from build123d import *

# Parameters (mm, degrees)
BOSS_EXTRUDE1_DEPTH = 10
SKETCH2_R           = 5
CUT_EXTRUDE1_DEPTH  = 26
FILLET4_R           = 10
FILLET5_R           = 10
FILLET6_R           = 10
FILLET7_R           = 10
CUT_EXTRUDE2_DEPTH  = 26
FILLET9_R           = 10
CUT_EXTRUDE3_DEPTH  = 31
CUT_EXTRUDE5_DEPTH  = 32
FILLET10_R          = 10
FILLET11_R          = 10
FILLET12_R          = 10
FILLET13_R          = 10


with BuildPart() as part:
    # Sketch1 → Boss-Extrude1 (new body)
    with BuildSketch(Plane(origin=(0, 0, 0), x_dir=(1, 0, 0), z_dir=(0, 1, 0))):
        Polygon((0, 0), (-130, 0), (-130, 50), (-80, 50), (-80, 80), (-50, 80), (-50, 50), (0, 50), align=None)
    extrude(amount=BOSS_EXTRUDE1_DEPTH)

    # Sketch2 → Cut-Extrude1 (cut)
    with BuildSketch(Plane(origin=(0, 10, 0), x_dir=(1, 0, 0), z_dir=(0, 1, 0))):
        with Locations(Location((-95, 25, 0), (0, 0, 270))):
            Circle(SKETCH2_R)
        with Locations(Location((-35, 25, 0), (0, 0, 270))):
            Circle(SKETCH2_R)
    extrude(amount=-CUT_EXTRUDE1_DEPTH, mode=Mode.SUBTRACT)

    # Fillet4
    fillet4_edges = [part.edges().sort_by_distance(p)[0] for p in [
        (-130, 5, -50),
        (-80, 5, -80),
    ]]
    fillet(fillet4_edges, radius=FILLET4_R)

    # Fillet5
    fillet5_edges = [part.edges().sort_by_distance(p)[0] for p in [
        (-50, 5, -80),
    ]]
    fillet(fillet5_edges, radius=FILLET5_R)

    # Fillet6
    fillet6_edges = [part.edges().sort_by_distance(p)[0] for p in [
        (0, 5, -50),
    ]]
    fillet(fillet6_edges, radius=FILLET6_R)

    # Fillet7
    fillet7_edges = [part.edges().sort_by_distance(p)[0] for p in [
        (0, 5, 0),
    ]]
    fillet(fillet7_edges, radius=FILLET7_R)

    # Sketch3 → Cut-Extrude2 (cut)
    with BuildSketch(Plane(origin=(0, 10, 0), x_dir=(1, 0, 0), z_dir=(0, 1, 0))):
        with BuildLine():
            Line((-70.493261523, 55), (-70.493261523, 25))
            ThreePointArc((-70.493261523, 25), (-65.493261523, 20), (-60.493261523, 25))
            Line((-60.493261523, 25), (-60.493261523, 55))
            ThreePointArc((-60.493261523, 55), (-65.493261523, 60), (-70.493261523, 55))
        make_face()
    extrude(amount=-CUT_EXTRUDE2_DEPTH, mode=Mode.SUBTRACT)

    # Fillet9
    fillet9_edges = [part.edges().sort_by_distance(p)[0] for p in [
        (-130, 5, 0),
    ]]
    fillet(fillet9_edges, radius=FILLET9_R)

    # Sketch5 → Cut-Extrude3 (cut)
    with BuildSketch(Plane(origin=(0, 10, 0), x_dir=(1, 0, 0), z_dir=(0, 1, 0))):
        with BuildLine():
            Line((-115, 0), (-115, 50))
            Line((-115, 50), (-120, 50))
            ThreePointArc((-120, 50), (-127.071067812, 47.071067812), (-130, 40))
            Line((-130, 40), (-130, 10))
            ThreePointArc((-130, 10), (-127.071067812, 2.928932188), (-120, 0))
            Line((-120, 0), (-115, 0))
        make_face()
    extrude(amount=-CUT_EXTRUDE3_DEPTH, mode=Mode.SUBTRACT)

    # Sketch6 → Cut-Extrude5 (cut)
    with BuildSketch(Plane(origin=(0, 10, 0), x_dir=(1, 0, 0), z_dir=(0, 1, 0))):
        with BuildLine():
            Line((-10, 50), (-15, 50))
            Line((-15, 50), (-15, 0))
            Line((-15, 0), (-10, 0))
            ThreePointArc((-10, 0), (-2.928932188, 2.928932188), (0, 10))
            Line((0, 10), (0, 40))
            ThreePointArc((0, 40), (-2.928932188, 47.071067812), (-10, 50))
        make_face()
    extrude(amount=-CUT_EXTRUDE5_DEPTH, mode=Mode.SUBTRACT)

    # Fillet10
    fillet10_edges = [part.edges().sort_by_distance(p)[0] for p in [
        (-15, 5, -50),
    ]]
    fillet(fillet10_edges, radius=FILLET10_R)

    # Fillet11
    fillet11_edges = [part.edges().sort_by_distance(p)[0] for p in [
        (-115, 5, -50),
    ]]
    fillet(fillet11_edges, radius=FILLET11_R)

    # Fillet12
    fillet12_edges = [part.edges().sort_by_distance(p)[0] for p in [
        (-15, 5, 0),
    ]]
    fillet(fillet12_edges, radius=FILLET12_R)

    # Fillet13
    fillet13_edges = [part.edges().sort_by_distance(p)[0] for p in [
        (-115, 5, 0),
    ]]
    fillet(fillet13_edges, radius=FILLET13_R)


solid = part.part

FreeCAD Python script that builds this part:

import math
import FreeCAD as App
import Part
import Sketcher
from FreeCAD import Vector


def edges_at(feature, points):
    """Names of the edges that pass closest to the given points."""
    edges = feature.Shape.Edges
    near = lambda p: min(range(len(edges)), key=lambda i: edges[i].distToShape(Part.Vertex(*p))[0])
    return sorted({f"Edge{near(p) + 1}" for p in points})

doc = App.newDocument("Part")
body = doc.addObject("PartDesign::Body", "Body")

# Sketch on XZ plane
sketch1 = doc.addObject("Sketcher::SketchObject", "Sketch")
body.addObject(sketch1)
sketch1.AttachmentSupport = (doc.XZ_Plane, [""])
sketch1.MapMode = "FlatFace"
sketch1.addGeometry([
    Part.LineSegment(Vector(-130, 0, 0), Vector(0, 0, 0)),  # 0
    Part.LineSegment(Vector(0, 0, 0), Vector(0, -50, 0)),  # 1
    Part.LineSegment(Vector(0, -50, 0), Vector(-50, -50, 0)),  # 2
    Part.LineSegment(Vector(-50, -50, 0), Vector(-50, -80, 0)),  # 3
    Part.LineSegment(Vector(-50, -80, 0), Vector(-80, -80, 0)),  # 4
    Part.LineSegment(Vector(-80, -80, 0), Vector(-80, -50, 0)),  # 5
    Part.LineSegment(Vector(-80, -50, 0), Vector(-130, -50, 0)),  # 6
    Part.LineSegment(Vector(-130, -50, 0), Vector(-130, 0, 0)),  # 7
], False)
sketch1.addConstraint([
    Sketcher.Constraint("Coincident", 0, 2, 1, 1),
    Sketcher.Constraint("Coincident", 1, 2, 2, 1),
    Sketcher.Constraint("Coincident", 2, 2, 3, 1),
    Sketcher.Constraint("Coincident", 3, 2, 4, 1),
    Sketcher.Constraint("Coincident", 4, 2, 5, 1),
    Sketcher.Constraint("Coincident", 5, 2, 6, 1),
    Sketcher.Constraint("Coincident", 6, 2, 7, 1),
    Sketcher.Constraint("Coincident", 7, 2, 0, 1),
    Sketcher.Constraint("Horizontal", 0),
    Sketcher.Constraint("Vertical", 1),
    Sketcher.Constraint("Horizontal", 2),
    Sketcher.Constraint("Vertical", 3),
    Sketcher.Constraint("Horizontal", 4),
    Sketcher.Constraint("Vertical", 5),
    Sketcher.Constraint("Horizontal", 6),
    Sketcher.Constraint("Vertical", 7),
    Sketcher.Constraint("Coincident", 0, 2, -1, 1),
    Sketcher.Constraint("Horizontal", 2, 2, 5, 2),
    Sketcher.Constraint("Equal", 2, 6),
    Sketcher.Constraint("Equal", 6, 1),
    Sketcher.Constraint("Equal", 4, 3),
    Sketcher.Constraint("DistanceX", 0, 1, 0, 2, 130.0),
    Sketcher.Constraint("DistanceX", 2, 2, 2, 1, 50.0),
])
pad1 = doc.addObject("PartDesign::Pad", "Pad")
body.addObject(pad1)
pad1.Profile = sketch1
pad1.Length = 10
pad1.Reversed = True

# Sketch on XZ plane
sketch2 = doc.addObject("Sketcher::SketchObject", "Sketch001")
body.addObject(sketch2)
sketch2.AttachmentSupport = (doc.XZ_Plane, [""])
sketch2.MapMode = "FlatFace"
sketch2.AttachmentOffset = App.Placement(Vector(0, 0, -10), App.Rotation())
sketch2.addGeometry([
    Part.Circle(Vector(-95, -25, 0), Vector(0, 0, 1), 5),
    Part.Circle(Vector(-35, -25, 0), Vector(0, 0, 1), 5),
], False)
sketch2.addConstraint([
    Sketcher.Constraint("Equal", 0, 1),
    Sketcher.Constraint("Horizontal", 0, 3, 1, 3),
    Sketcher.Constraint("Diameter", 0, 10.0),
    Sketcher.Constraint("DistanceX", 0, 3, -1, 1, 95.0),
    Sketcher.Constraint("DistanceY", 0, 3, -1, 1, 25.0),
    Sketcher.Constraint("DistanceX", 1, 3, -1, 1, 35.0),
])
pocket1 = doc.addObject("PartDesign::Pocket", "Pocket")
body.addObject(pocket1)
pocket1.Profile = sketch2
pocket1.Length = 26
pocket1.Reversed = True
doc.recompute()

fillet = doc.addObject("PartDesign::Fillet", "Fillet")
body.addObject(fillet)
fillet.Base = (pocket1, edges_at(pocket1, [(-130, 5, -50), (-80, 5, -80)]))
fillet.Radius = 10
doc.recompute()

fillet2 = doc.addObject("PartDesign::Fillet", "Fillet001")
body.addObject(fillet2)
fillet2.Base = (fillet, edges_at(fillet, [(-50, 5, -80)]))
fillet2.Radius = 10
doc.recompute()

fillet3 = doc.addObject("PartDesign::Fillet", "Fillet002")
body.addObject(fillet3)
fillet3.Base = (fillet2, edges_at(fillet2, [(0, 5, -50)]))
fillet3.Radius = 10
doc.recompute()

fillet4 = doc.addObject("PartDesign::Fillet", "Fillet003")
body.addObject(fillet4)
fillet4.Base = (fillet3, edges_at(fillet3, [(0, 5, 0)]))
fillet4.Radius = 10

# Sketch on XZ plane
sketch3 = doc.addObject("Sketcher::SketchObject", "Sketch002")
body.addObject(sketch3)
sketch3.AttachmentSupport = (doc.XZ_Plane, [""])
sketch3.MapMode = "FlatFace"
sketch3.AttachmentOffset = App.Placement(Vector(0, 0, -10), App.Rotation())
sketch3.addGeometry([
    Part.LineSegment(Vector(-70, -55, 0), Vector(-70, -25, 0)),
    Part.ArcOfCircle(Part.Circle(Vector(-65, -25, 0), Vector(0, 0, 1), 5), math.radians(0), math.radians(180)),
    Part.LineSegment(Vector(-60, -25, 0), Vector(-60, -55, 0)),
    Part.ArcOfCircle(Part.Circle(Vector(-65, -55, 0), Vector(0, 0, 1), 5), math.radians(180), math.radians(360)),
], False)
sketch3.addConstraint([
    Sketcher.Constraint("Tangent", 0, 2, 1, 2),
    Sketcher.Constraint("Tangent", 1, 1, 2, 1),
    Sketcher.Constraint("Tangent", 2, 2, 3, 2),
    Sketcher.Constraint("Tangent", 3, 1, 0, 1),
    Sketcher.Constraint("Vertical", 0),
    Sketcher.Constraint("Vertical", 2),
    Sketcher.Constraint("Radius", 1, 5.0),
    Sketcher.Constraint("DistanceY", 0, 1, 0, 2, 30.0),
    Sketcher.Constraint("DistanceY", 1, 3, -1, 1, 25.0),
    Sketcher.Constraint("DistanceX", 1, 3, -1, 1, 65.493262),
])
pocket2 = doc.addObject("PartDesign::Pocket", "Pocket001")
body.addObject(pocket2)
pocket2.Profile = sketch3
pocket2.Length = 26
pocket2.Reversed = True
doc.recompute()

fillet5 = doc.addObject("PartDesign::Fillet", "Fillet004")
body.addObject(fillet5)
fillet5.Base = (pocket2, edges_at(pocket2, [(-130, 5, 0)]))
fillet5.Radius = 10

# Sketch on XZ plane
sketch4 = doc.addObject("Sketcher::SketchObject", "Sketch003")
body.addObject(sketch4)
sketch4.AttachmentSupport = (doc.XZ_Plane, [""])
sketch4.MapMode = "FlatFace"
sketch4.AttachmentOffset = App.Placement(Vector(0, 0, -10), App.Rotation())
sketch4.addGeometry([
    Part.LineSegment(Vector(-115, 0, 0), Vector(-115, -50, 0)),  # 0
    Part.LineSegment(Vector(-115, -50, 0), Vector(-120, -50, 0)),  # 1
    Part.ArcOfCircle(Part.Circle(Vector(-120, -40, 0), Vector(0, 0, 1), 10), math.radians(180), math.radians(270)),  # 2
    Part.LineSegment(Vector(-130, -40, 0), Vector(-130, -10, 0)),  # 3
    Part.ArcOfCircle(Part.Circle(Vector(-120, -10, 0), Vector(0, 0, 1), 10), math.radians(90), math.radians(180)),  # 4
    Part.LineSegment(Vector(-120, 0, 0), Vector(-115, 0, 0)),  # 5
], False)
sketch4.addConstraint([
    Sketcher.Constraint("Coincident", 0, 2, 1, 1),
    Sketcher.Constraint("Tangent", 1, 2, 2, 2),
    Sketcher.Constraint("Tangent", 2, 1, 3, 1),
    Sketcher.Constraint("Tangent", 3, 2, 4, 2),
    Sketcher.Constraint("Tangent", 4, 1, 5, 1),
    Sketcher.Constraint("Coincident", 5, 2, 0, 1),
    Sketcher.Constraint("Vertical", 0),
    Sketcher.Constraint("Horizontal", 1),
    Sketcher.Constraint("Vertical", 3),
    Sketcher.Constraint("Horizontal", 5),
    Sketcher.Constraint("Equal", 2, 4),
    Sketcher.Constraint("PointOnObject", 4, 1, -1),
    Sketcher.Constraint("Radius", 2, 10.0),
    Sketcher.Constraint("DistanceX", 1, 2, 1, 1, 5.0),
    Sketcher.Constraint("DistanceY", 0, 2, 0, 1, 50.0),
    Sketcher.Constraint("DistanceX", 2, 3, -1, 1, 120.0),
])
pocket3 = doc.addObject("PartDesign::Pocket", "Pocket002")
body.addObject(pocket3)
pocket3.Profile = sketch4
pocket3.Length = 31
pocket3.Reversed = True

# Sketch on XZ plane
sketch5 = doc.addObject("Sketcher::SketchObject", "Sketch004")
body.addObject(sketch5)
sketch5.AttachmentSupport = (doc.XZ_Plane, [""])
sketch5.MapMode = "FlatFace"
sketch5.AttachmentOffset = App.Placement(Vector(0, 0, -10), App.Rotation())
sketch5.addGeometry([
    Part.LineSegment(Vector(-10, -50, 0), Vector(-15, -50, 0)),  # 0
    Part.LineSegment(Vector(-15, -50, 0), Vector(-15, 0, 0)),  # 1
    Part.LineSegment(Vector(-15, 0, 0), Vector(-10, 0, 0)),  # 2
    Part.ArcOfCircle(Part.Circle(Vector(-10, -10, 0), Vector(0, 0, 1), 10), math.radians(0), math.radians(90)),  # 3
    Part.LineSegment(Vector(0, -10, 0), Vector(0, -40, 0)),  # 4
    Part.ArcOfCircle(Part.Circle(Vector(-10, -40, 0), Vector(0, 0, 1), 10), math.radians(-90), math.radians(0)),  # 5
], False)
sketch5.addConstraint([
    Sketcher.Constraint("Coincident", 0, 2, 1, 1),
    Sketcher.Constraint("Coincident", 1, 2, 2, 1),
    Sketcher.Constraint("Tangent", 2, 2, 3, 2),
    Sketcher.Constraint("Tangent", 3, 1, 4, 1),
    Sketcher.Constraint("Tangent", 4, 2, 5, 2),
    Sketcher.Constraint("Tangent", 5, 1, 0, 1),
    Sketcher.Constraint("Horizontal", 0),
    Sketcher.Constraint("Vertical", 1),
    Sketcher.Constraint("Horizontal", 2),
    Sketcher.Constraint("Vertical", 4),
    Sketcher.Constraint("Equal", 3, 5),
    Sketcher.Constraint("PointOnObject", 1, 2, -1),
    Sketcher.Constraint("PointOnObject", 3, 1, -2),
    Sketcher.Constraint("Radius", 3, 10.0),
    Sketcher.Constraint("DistanceX", 0, 2, 0, 1, 5.0),
    Sketcher.Constraint("DistanceY", 1, 1, 1, 2, 50.0),
])
pocket4 = doc.addObject("PartDesign::Pocket", "Pocket003")
body.addObject(pocket4)
pocket4.Profile = sketch5
pocket4.Length = 32
pocket4.Reversed = True
doc.recompute()

fillet6 = doc.addObject("PartDesign::Fillet", "Fillet005")
body.addObject(fillet6)
fillet6.Base = (pocket4, edges_at(pocket4, [(-15, 5, -50)]))
fillet6.Radius = 10
doc.recompute()

fillet7 = doc.addObject("PartDesign::Fillet", "Fillet006")
body.addObject(fillet7)
fillet7.Base = (fillet6, edges_at(fillet6, [(-115, 5, -50)]))
fillet7.Radius = 10
doc.recompute()

fillet8 = doc.addObject("PartDesign::Fillet", "Fillet007")
body.addObject(fillet8)
fillet8.Base = (fillet7, edges_at(fillet7, [(-15, 5, 0)]))
fillet8.Radius = 10
doc.recompute()

fillet9 = doc.addObject("PartDesign::Fillet", "Fillet008")
body.addObject(fillet9)
fillet9.Base = (fillet8, edges_at(fillet8, [(-115, 5, 0)]))
fillet9.Radius = 10

doc.recompute()
